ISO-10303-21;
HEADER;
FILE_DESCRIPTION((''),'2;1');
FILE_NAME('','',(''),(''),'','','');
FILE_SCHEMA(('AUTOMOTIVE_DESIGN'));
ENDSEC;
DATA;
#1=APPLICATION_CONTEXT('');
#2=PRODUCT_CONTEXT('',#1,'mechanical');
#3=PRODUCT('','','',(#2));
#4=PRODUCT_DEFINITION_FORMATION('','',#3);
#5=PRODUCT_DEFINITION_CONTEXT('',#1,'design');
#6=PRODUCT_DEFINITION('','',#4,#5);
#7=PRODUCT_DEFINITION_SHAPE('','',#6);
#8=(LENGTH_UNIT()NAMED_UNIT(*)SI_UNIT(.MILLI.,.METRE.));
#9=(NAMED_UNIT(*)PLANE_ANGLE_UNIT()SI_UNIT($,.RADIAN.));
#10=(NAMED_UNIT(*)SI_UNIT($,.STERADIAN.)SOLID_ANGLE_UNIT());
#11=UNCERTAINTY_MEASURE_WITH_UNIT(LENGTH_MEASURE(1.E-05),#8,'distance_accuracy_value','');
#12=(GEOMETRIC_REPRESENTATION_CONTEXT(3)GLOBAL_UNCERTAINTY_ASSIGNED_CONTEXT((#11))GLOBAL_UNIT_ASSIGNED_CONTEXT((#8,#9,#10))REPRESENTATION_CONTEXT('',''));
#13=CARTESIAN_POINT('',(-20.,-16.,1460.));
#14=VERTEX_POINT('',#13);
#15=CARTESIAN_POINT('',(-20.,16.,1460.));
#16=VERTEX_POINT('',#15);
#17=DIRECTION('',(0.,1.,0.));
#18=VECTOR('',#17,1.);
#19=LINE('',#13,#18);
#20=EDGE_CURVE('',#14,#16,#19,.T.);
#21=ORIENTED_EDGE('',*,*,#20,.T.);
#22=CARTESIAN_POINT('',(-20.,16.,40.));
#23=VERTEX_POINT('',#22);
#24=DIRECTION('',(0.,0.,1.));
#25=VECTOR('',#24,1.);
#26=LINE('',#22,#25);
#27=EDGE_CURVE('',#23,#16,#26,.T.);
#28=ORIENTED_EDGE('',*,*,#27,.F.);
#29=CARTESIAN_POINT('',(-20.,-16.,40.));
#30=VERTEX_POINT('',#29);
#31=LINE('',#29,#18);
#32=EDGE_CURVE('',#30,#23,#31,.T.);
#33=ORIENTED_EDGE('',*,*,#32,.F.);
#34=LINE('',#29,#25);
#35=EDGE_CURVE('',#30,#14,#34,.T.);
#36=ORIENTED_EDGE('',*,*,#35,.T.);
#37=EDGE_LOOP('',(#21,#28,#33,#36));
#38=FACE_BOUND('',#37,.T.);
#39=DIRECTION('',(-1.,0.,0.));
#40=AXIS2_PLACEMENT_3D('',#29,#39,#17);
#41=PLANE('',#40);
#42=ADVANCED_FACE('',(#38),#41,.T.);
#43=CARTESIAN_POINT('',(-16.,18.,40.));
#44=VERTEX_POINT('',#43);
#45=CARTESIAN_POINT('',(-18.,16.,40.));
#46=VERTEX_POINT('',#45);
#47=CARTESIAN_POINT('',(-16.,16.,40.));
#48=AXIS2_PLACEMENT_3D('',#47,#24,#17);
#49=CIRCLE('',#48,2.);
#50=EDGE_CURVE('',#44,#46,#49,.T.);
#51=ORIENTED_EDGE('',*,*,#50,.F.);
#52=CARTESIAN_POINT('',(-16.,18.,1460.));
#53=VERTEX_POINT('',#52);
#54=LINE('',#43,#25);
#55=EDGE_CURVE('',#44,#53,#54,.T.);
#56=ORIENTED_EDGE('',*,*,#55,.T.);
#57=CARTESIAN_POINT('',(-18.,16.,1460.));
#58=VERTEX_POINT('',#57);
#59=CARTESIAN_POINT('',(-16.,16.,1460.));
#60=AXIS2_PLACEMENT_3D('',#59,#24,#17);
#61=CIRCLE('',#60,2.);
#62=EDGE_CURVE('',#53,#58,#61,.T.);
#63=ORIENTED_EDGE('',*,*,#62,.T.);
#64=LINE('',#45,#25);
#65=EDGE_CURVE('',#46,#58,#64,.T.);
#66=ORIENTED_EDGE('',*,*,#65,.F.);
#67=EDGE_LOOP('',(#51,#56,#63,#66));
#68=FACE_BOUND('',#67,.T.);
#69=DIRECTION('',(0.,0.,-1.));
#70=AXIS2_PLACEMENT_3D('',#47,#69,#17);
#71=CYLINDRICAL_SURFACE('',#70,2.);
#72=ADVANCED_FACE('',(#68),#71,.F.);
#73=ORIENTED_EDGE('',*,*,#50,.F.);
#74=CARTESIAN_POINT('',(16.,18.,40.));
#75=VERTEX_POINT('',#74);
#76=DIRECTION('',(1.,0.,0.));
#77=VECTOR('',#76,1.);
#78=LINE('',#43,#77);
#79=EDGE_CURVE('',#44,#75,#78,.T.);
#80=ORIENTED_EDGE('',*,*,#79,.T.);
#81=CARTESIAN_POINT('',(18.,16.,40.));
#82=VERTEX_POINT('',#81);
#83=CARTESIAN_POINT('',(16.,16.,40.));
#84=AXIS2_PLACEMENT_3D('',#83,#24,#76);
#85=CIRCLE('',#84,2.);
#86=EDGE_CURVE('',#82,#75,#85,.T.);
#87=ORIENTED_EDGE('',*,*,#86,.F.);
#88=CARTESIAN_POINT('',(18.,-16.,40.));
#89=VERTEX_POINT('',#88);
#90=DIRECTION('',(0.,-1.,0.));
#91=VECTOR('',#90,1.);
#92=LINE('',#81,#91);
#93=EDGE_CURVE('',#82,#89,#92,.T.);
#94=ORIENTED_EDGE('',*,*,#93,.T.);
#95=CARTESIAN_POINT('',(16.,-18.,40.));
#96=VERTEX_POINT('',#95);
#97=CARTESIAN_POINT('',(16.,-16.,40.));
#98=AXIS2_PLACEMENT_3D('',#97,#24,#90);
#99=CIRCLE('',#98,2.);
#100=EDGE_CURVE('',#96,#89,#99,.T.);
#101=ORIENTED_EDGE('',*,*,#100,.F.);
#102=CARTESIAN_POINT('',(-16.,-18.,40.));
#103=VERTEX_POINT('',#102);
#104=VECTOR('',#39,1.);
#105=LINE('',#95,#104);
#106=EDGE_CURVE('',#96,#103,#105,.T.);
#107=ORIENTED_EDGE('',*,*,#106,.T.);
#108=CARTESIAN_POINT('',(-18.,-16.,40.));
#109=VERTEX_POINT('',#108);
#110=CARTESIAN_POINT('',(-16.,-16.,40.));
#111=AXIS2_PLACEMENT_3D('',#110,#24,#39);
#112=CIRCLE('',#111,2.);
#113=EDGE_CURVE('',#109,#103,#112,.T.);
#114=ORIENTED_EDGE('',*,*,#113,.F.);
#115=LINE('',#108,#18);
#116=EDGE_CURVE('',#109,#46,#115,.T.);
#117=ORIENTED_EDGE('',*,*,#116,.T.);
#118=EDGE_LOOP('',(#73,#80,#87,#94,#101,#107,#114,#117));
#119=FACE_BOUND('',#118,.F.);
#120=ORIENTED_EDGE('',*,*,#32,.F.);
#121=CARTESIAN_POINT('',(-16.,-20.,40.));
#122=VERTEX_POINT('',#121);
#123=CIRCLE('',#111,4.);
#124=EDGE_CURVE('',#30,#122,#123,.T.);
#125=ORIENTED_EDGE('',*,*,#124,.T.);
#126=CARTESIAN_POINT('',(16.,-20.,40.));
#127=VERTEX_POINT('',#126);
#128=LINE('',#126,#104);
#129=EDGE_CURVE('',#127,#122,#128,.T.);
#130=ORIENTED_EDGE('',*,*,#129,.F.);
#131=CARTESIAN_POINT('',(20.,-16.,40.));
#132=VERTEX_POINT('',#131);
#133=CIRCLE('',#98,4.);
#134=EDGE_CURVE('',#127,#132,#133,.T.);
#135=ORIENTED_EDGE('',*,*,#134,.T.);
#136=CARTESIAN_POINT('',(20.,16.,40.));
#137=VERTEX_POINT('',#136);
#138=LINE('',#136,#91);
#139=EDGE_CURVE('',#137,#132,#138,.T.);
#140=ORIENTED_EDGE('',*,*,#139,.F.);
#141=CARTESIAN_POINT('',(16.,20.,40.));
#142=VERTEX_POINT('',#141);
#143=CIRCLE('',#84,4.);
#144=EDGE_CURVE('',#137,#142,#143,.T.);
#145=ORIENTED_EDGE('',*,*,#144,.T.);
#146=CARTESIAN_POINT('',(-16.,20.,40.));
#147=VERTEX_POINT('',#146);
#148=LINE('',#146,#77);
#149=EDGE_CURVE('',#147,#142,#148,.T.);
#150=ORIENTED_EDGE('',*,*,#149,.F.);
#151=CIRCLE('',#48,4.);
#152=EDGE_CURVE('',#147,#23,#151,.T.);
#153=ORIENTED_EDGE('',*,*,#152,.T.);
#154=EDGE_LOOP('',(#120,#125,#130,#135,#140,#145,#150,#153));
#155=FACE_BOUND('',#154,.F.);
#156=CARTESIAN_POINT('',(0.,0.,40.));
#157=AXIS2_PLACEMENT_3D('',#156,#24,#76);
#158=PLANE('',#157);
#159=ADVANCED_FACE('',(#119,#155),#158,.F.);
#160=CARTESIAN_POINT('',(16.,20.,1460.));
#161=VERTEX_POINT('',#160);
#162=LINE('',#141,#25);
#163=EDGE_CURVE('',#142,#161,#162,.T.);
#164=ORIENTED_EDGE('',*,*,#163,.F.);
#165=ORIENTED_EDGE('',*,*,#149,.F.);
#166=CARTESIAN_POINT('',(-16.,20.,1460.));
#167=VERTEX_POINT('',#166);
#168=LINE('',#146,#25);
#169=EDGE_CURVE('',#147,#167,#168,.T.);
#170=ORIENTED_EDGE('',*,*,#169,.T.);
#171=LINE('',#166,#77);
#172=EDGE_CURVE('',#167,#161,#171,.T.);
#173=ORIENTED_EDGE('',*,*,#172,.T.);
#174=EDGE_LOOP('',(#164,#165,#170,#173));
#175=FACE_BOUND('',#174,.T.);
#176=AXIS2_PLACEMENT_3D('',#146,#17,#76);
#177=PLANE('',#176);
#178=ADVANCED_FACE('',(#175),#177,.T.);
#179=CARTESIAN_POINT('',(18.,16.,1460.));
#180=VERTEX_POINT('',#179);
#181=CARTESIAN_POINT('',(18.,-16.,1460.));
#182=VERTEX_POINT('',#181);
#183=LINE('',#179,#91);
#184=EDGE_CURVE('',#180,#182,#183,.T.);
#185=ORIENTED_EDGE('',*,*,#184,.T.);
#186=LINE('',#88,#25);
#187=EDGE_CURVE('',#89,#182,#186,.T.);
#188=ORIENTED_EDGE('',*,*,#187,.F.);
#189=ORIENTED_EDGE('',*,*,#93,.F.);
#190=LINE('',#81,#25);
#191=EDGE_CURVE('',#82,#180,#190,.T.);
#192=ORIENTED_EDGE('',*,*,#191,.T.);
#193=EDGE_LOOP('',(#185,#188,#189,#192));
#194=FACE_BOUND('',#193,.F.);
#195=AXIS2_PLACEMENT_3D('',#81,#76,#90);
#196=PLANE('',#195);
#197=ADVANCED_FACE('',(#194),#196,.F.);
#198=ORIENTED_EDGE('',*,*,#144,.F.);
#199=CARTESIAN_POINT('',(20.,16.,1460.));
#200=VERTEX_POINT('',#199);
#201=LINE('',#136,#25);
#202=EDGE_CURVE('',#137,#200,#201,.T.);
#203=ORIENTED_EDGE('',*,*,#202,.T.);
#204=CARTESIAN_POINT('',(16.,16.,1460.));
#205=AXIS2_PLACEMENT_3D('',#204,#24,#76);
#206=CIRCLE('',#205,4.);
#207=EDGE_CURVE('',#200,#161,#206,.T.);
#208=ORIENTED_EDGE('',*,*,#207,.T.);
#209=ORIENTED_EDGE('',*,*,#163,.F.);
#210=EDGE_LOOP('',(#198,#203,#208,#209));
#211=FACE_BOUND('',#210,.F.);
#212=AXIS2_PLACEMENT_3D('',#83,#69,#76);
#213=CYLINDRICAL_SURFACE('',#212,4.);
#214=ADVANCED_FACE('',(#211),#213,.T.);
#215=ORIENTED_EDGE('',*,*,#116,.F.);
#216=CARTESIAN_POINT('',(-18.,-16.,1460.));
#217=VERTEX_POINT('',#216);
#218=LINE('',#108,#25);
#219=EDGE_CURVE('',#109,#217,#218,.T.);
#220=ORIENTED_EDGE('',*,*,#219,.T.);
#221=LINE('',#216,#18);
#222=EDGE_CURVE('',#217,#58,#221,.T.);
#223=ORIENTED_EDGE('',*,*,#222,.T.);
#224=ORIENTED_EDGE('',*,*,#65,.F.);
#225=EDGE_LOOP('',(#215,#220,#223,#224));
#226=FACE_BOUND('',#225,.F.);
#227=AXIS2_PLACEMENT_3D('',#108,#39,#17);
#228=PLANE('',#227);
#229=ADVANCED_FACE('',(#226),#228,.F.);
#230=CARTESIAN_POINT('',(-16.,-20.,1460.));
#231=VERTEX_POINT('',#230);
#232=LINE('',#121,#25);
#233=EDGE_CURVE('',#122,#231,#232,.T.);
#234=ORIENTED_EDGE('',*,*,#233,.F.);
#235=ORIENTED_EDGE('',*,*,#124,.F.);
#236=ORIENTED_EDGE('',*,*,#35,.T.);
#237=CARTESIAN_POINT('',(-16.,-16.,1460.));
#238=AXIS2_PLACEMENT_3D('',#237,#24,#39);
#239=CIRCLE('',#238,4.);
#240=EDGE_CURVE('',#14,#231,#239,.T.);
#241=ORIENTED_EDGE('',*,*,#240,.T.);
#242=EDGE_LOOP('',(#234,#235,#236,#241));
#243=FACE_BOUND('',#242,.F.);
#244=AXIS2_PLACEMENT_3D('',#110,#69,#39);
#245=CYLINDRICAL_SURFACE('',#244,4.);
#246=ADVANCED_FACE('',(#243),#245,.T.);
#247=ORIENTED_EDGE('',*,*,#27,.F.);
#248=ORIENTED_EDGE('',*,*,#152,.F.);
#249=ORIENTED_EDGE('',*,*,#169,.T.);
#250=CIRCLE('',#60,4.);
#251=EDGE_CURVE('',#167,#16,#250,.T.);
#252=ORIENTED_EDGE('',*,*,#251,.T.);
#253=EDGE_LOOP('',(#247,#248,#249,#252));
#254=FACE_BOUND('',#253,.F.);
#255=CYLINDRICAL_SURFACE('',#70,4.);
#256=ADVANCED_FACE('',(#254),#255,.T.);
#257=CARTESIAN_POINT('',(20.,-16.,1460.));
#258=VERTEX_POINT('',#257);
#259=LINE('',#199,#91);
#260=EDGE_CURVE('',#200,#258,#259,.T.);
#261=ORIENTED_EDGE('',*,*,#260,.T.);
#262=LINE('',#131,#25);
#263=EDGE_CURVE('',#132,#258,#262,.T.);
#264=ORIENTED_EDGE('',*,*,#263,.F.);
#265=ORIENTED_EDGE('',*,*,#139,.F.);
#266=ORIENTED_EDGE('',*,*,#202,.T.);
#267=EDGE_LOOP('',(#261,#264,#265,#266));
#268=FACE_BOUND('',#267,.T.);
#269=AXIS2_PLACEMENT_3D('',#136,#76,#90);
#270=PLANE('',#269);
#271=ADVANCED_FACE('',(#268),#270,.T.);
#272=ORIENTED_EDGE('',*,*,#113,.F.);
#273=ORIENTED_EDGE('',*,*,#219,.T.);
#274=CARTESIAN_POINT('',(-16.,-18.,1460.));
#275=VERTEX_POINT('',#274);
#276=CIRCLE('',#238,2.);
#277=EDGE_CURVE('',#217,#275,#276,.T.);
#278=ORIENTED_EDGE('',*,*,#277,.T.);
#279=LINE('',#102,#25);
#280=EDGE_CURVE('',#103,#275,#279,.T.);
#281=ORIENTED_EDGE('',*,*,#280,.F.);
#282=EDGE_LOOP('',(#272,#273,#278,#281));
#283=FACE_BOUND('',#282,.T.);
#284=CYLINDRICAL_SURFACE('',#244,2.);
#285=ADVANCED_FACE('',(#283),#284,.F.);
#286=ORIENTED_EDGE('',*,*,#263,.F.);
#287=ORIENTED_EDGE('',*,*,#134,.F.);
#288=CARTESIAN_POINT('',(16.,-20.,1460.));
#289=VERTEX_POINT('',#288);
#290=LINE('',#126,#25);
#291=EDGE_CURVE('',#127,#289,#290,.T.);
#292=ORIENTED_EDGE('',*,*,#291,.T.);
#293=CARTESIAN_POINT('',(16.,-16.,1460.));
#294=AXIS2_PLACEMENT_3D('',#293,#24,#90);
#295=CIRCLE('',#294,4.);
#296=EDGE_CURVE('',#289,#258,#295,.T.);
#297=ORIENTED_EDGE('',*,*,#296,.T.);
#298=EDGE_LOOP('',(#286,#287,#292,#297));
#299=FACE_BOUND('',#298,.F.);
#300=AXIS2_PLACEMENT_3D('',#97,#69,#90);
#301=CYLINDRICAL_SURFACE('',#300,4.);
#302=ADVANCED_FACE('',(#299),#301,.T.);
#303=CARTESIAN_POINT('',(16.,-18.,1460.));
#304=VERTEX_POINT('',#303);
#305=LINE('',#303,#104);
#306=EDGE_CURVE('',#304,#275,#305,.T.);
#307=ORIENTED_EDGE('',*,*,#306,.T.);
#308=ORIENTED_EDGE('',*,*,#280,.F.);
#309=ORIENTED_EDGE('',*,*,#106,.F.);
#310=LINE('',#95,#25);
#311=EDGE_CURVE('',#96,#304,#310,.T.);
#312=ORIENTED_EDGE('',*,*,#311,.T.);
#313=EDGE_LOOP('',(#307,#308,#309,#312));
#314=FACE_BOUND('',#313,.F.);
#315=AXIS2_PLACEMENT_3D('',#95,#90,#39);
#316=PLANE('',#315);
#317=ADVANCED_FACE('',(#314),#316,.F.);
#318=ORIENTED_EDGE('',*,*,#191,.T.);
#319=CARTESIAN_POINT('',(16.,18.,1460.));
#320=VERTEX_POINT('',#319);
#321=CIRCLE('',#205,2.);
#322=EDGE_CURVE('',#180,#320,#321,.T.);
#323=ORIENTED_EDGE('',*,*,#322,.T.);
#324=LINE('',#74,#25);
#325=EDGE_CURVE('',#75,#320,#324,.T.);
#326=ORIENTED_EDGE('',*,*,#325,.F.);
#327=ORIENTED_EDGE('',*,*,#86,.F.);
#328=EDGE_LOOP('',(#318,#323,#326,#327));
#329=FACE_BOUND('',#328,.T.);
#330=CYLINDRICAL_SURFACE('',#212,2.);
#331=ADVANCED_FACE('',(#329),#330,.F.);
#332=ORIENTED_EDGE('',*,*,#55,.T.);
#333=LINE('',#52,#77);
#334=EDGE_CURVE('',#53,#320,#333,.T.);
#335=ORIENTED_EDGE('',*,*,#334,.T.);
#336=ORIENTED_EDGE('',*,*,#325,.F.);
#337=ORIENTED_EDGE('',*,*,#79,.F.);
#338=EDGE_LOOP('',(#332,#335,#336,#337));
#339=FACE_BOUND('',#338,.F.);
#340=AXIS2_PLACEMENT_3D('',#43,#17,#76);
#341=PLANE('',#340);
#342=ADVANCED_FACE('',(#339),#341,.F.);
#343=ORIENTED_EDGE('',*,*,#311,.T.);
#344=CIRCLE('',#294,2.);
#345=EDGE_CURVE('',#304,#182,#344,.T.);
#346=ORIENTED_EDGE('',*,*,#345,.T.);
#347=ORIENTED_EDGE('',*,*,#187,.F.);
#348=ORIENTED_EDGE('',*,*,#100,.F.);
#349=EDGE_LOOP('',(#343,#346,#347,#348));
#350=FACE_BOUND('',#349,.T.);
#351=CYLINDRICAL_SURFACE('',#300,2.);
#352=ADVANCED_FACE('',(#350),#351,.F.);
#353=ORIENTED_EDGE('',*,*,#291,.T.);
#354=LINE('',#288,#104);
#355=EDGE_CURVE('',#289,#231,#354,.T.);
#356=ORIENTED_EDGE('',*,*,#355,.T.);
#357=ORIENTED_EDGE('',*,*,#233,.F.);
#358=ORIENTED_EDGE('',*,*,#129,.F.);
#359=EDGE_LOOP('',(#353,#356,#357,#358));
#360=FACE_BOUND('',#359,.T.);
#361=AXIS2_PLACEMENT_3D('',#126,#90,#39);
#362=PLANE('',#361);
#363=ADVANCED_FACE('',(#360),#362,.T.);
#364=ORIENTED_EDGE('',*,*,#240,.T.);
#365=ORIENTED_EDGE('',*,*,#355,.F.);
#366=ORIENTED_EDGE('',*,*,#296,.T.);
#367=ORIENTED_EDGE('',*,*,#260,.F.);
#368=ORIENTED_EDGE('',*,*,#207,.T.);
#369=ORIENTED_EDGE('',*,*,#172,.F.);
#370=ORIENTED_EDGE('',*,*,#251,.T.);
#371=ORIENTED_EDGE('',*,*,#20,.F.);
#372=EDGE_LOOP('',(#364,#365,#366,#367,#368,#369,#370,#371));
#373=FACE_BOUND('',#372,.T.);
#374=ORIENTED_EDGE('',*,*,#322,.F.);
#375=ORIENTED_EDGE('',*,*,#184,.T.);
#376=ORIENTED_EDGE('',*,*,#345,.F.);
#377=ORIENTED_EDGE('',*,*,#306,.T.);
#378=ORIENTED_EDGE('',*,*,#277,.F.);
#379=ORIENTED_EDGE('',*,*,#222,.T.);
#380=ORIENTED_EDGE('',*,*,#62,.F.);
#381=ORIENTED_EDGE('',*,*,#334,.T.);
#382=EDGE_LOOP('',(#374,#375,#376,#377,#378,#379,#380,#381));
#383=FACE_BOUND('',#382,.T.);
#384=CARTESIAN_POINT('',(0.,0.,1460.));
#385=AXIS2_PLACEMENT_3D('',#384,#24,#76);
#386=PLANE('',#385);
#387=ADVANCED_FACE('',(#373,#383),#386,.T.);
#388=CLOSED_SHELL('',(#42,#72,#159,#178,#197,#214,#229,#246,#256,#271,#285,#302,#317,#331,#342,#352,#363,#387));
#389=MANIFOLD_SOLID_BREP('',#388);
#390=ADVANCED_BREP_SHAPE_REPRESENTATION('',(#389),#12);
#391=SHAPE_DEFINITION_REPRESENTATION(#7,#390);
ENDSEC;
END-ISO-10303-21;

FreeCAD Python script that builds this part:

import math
import FreeCAD as App
import Part
import Sketcher

doc = App.newDocument("Part")
params = doc.addObject("Spreadsheet::Sheet", "Params")
for row, (alias, value) in enumerate([
    ("sketch1_radius", "4 mm"),
    ("sketch1_radius2", "2 mm"),
    ("pad1_length", "1420 mm"),
], start=1):
    params.set(f"A{row}", alias)
    params.set(f"B{row}", "=" + value)
    params.setAlias(f"B{row}", alias)

body = doc.addObject("PartDesign::Body", "Body")

# Sketch on XY plane
sketch1 = body.newObject("Sketcher::SketchObject", "Sketch")
sketch1.AttachmentSupport = (doc.getObject("XY_Plane"), [""])
sketch1.MapMode = "FlatFace"
sketch1.AttachmentOffset = App.Placement(App.Vector(0, 0, 40), App.Rotation())
sketch1.addGeometry([
    Part.LineSegment(App.Vector(-20, 16, 0), App.Vector(-20, -16, 0)),  # 0
    Part.ArcOfCircle(Part.Circle(App.Vector(-16, -16, 0), App.Vector(0, 0, 1), 4), math.radians(180), math.radians(270)),  # 1
    Part.LineSegment(App.Vector(-16, -20, 0), App.Vector(16, -20, 0)),  # 2
    Part.ArcOfCircle(Part.Circle(App.Vector(16, -16, 0), App.Vector(0, 0, 1), 4), math.radians(-90), math.radians(0)),  # 3
    Part.LineSegment(App.Vector(20, -16, 0), App.Vector(20, 16, 0)),  # 4
    Part.ArcOfCircle(Part.Circle(App.Vector(16, 16, 0), App.Vector(0, 0, 1), 4), math.radians(0), math.radians(90)),  # 5
    Part.LineSegment(App.Vector(16, 20, 0), App.Vector(-16, 20, 0)),  # 6
    Part.ArcOfCircle(Part.Circle(App.Vector(-16, 16, 0), App.Vector(0, 0, 1), 4), math.radians(90), math.radians(180)),  # 7
    Part.ArcOfCircle(Part.Circle(App.Vector(-16, 16, 0), App.Vector(0, 0, 1), 2), math.radians(90), math.radians(180)),  # 8
    Part.LineSegment(App.Vector(-16, 18, 0), App.Vector(16, 18, 0)),  # 9
    Part.ArcOfCircle(Part.Circle(App.Vector(16, 16, 0), App.Vector(0, 0, 1), 2), math.radians(0), math.radians(90)),  # 10
    Part.LineSegment(App.Vector(18, 16, 0), App.Vector(18, -16, 0)),  # 11
    Part.ArcOfCircle(Part.Circle(App.Vector(16, -16, 0), App.Vector(0, 0, 1), 2), math.radians(-90), math.radians(0)),  # 12
    Part.LineSegment(App.Vector(16, -18, 0), App.Vector(-16, -18, 0)),  # 13
    Part.ArcOfCircle(Part.Circle(App.Vector(-16, -16, 0), App.Vector(0, 0, 1), 2), math.radians(180), math.radians(270)),  # 14
    Part.LineSegment(App.Vector(-18, -16, 0), App.Vector(-18, 16, 0)),  # 15
], False)
sketch1.addConstraint([
    Sketcher.Constraint("Tangent", 0, 2, 1, 1),
    Sketcher.Constraint("Tangent", 1, 2, 2, 1),
    Sketcher.Constraint("Tangent", 2, 2, 3, 1),
    Sketcher.Constraint("Tangent", 3, 2, 4, 1),
    Sketcher.Constraint("Tangent", 4, 2, 5, 1),
    Sketcher.Constraint("Tangent", 5, 2, 6, 1),
    Sketcher.Constraint("Tangent", 6, 2, 7, 1),
    Sketcher.Constraint("Tangent", 7, 2, 0, 1),
    Sketcher.Constraint("Tangent", 8, 1, 9, 1),
    Sketcher.Constraint("Tangent", 9, 2, 10, 2),
    Sketcher.Constraint("Tangent", 10, 1, 11, 1),
    Sketcher.Constraint("Tangent", 11, 2, 12, 2),
    Sketcher.Constraint("Tangent", 12, 1, 13, 1),
    Sketcher.Constraint("Tangent", 13, 2, 14, 2),
    Sketcher.Constraint("Tangent", 14, 1, 15, 1),
    Sketcher.Constraint("Tangent", 15, 2, 8, 2),
    Sketcher.Constraint("Vertical", 0),
    Sketcher.Constraint("Horizontal", 2),
    Sketcher.Constraint("Vertical", 4),
    Sketcher.Constraint("Horizontal", 6),
    Sketcher.Constraint("Horizontal", 9),
    Sketcher.Constraint("Vertical", 11),
    Sketcher.Constraint("Horizontal", 13),
    Sketcher.Constraint("Vertical", 15),
    Sketcher.Constraint("Coincident", 8, 3, 7, 3),
    Sketcher.Constraint("Coincident", 10, 3, 5, 3),
    Sketcher.Constraint("Coincident", 12, 3, 3, 3),
    Sketcher.Constraint("Equal", 1, 3),
    Sketcher.Constraint("Equal", 3, 5),
    Sketcher.Constraint("Equal", 5, 7),
    Sketcher.Constraint("Equal", 12, 14),
    Sketcher.Constraint("Symmetric", 1, 3, 5, 3, -1, 1),
    Sketcher.Constraint("Equal", 13, 0),
    Sketcher.Constraint("Radius", 1, 4.0),
    Sketcher.Constraint("Radius", 8, 2.0),
    Sketcher.Constraint("DistanceX", 0, 2, -1, 1, 20.0),
])
sketch1.setExpression("Constraints[33]", "Params.sketch1_radius")
sketch1.setExpression("Constraints[34]", "Params.sketch1_radius2")
pad1 = body.newObject("PartDesign::Pad", "Pad")
pad1.Profile = sketch1
pad1.setExpression("Length", "Params.pad1_length")

doc.recompute()
